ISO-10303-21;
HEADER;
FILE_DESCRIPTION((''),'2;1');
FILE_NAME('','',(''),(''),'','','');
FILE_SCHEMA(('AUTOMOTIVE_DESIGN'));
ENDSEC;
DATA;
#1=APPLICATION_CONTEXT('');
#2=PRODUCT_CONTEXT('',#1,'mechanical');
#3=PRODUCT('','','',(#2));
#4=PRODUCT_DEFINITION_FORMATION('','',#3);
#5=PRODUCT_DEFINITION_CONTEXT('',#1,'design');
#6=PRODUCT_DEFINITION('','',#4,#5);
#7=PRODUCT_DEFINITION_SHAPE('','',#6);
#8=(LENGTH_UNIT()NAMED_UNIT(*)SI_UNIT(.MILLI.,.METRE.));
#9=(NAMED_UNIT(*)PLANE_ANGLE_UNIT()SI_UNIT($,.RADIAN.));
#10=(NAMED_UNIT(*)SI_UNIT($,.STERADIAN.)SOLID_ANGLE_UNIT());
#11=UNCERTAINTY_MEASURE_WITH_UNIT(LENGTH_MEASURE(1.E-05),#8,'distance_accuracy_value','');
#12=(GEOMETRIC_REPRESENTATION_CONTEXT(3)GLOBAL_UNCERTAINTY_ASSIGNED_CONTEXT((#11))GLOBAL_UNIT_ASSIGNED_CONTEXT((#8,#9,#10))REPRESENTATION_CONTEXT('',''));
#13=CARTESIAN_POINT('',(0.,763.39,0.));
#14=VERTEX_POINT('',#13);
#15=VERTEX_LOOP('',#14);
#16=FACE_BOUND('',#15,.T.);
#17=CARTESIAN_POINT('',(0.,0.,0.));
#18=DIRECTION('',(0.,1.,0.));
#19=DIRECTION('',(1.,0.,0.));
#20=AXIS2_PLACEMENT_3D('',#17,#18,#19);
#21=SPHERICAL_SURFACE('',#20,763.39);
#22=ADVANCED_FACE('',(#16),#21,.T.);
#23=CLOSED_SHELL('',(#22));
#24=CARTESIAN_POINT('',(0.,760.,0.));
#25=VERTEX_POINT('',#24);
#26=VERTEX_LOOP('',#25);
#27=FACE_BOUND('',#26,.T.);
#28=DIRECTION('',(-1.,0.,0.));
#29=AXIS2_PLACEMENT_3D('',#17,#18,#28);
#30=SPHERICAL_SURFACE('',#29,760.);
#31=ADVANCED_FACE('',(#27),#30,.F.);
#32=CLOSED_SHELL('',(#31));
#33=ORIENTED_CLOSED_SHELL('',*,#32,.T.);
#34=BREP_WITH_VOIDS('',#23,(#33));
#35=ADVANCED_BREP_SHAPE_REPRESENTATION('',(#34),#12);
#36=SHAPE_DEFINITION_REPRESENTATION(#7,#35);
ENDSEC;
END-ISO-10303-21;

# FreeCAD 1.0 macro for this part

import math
import FreeCAD as App
import Part
import Sketcher

doc = App.newDocument("Part")
body = doc.addObject("PartDesign::Body", "Body")

sketch1 = body.newObject("Sketcher::SketchObject", "Sketch")
sketch1.AttachmentSupport = (doc.getObject("XY_Plane"), [""])
sketch1.MapMode = "FlatFace"
sketch1.addGeometry([
    Part.LineSegment(App.Vector(0, 760, 0), App.Vector(0, 763.39, 0)),
    Part.ArcOfCircle(Part.Circle(App.Vector(0, 0, 0), App.Vector(0, 0, 1), 763.39), math.radians(90), math.radians(270)),
    Part.LineSegment(App.Vector(0, -763.39, 0), App.Vector(0, -760, 0)),
    Part.ArcOfCircle(Part.Circle(App.Vector(0, 0, 0), App.Vector(0, 0, 1), 760), math.radians(90), math.radians(270)),
], False)
sketch1.addConstraint([
    Sketcher.Constraint("Coincident", 0, 2, 1, 1),
    Sketcher.Constraint("Coincident", 1, 2, 2, 1),
    Sketcher.Constraint("Coincident", 2, 2, 3, 2),
    Sketcher.Constraint("Coincident", 3, 1, 0, 1),
    Sketcher.Constraint("Vertical", 0),
    Sketcher.Constraint("Vertical", 2),
    Sketcher.Constraint("Coincident", 1, 3, -1, 1),
    Sketcher.Constraint("Coincident", 3, 3, -1, 1),
    Sketcher.Constraint("PointOnObject", 0, 2, -2),
    Sketcher.Constraint("PointOnObject", 2, 2, -2),
    Sketcher.Constraint("Radius", 3, 760.0),
    Sketcher.Constraint("Radius", 1, 763.39),
])
revolution = body.newObject("PartDesign::Revolution", "Revolution")
revolution.Profile = sketch1
revolution.ReferenceAxis = (sketch1, ["V_Axis"])
revolution.Angle = 360

doc.recompute()
